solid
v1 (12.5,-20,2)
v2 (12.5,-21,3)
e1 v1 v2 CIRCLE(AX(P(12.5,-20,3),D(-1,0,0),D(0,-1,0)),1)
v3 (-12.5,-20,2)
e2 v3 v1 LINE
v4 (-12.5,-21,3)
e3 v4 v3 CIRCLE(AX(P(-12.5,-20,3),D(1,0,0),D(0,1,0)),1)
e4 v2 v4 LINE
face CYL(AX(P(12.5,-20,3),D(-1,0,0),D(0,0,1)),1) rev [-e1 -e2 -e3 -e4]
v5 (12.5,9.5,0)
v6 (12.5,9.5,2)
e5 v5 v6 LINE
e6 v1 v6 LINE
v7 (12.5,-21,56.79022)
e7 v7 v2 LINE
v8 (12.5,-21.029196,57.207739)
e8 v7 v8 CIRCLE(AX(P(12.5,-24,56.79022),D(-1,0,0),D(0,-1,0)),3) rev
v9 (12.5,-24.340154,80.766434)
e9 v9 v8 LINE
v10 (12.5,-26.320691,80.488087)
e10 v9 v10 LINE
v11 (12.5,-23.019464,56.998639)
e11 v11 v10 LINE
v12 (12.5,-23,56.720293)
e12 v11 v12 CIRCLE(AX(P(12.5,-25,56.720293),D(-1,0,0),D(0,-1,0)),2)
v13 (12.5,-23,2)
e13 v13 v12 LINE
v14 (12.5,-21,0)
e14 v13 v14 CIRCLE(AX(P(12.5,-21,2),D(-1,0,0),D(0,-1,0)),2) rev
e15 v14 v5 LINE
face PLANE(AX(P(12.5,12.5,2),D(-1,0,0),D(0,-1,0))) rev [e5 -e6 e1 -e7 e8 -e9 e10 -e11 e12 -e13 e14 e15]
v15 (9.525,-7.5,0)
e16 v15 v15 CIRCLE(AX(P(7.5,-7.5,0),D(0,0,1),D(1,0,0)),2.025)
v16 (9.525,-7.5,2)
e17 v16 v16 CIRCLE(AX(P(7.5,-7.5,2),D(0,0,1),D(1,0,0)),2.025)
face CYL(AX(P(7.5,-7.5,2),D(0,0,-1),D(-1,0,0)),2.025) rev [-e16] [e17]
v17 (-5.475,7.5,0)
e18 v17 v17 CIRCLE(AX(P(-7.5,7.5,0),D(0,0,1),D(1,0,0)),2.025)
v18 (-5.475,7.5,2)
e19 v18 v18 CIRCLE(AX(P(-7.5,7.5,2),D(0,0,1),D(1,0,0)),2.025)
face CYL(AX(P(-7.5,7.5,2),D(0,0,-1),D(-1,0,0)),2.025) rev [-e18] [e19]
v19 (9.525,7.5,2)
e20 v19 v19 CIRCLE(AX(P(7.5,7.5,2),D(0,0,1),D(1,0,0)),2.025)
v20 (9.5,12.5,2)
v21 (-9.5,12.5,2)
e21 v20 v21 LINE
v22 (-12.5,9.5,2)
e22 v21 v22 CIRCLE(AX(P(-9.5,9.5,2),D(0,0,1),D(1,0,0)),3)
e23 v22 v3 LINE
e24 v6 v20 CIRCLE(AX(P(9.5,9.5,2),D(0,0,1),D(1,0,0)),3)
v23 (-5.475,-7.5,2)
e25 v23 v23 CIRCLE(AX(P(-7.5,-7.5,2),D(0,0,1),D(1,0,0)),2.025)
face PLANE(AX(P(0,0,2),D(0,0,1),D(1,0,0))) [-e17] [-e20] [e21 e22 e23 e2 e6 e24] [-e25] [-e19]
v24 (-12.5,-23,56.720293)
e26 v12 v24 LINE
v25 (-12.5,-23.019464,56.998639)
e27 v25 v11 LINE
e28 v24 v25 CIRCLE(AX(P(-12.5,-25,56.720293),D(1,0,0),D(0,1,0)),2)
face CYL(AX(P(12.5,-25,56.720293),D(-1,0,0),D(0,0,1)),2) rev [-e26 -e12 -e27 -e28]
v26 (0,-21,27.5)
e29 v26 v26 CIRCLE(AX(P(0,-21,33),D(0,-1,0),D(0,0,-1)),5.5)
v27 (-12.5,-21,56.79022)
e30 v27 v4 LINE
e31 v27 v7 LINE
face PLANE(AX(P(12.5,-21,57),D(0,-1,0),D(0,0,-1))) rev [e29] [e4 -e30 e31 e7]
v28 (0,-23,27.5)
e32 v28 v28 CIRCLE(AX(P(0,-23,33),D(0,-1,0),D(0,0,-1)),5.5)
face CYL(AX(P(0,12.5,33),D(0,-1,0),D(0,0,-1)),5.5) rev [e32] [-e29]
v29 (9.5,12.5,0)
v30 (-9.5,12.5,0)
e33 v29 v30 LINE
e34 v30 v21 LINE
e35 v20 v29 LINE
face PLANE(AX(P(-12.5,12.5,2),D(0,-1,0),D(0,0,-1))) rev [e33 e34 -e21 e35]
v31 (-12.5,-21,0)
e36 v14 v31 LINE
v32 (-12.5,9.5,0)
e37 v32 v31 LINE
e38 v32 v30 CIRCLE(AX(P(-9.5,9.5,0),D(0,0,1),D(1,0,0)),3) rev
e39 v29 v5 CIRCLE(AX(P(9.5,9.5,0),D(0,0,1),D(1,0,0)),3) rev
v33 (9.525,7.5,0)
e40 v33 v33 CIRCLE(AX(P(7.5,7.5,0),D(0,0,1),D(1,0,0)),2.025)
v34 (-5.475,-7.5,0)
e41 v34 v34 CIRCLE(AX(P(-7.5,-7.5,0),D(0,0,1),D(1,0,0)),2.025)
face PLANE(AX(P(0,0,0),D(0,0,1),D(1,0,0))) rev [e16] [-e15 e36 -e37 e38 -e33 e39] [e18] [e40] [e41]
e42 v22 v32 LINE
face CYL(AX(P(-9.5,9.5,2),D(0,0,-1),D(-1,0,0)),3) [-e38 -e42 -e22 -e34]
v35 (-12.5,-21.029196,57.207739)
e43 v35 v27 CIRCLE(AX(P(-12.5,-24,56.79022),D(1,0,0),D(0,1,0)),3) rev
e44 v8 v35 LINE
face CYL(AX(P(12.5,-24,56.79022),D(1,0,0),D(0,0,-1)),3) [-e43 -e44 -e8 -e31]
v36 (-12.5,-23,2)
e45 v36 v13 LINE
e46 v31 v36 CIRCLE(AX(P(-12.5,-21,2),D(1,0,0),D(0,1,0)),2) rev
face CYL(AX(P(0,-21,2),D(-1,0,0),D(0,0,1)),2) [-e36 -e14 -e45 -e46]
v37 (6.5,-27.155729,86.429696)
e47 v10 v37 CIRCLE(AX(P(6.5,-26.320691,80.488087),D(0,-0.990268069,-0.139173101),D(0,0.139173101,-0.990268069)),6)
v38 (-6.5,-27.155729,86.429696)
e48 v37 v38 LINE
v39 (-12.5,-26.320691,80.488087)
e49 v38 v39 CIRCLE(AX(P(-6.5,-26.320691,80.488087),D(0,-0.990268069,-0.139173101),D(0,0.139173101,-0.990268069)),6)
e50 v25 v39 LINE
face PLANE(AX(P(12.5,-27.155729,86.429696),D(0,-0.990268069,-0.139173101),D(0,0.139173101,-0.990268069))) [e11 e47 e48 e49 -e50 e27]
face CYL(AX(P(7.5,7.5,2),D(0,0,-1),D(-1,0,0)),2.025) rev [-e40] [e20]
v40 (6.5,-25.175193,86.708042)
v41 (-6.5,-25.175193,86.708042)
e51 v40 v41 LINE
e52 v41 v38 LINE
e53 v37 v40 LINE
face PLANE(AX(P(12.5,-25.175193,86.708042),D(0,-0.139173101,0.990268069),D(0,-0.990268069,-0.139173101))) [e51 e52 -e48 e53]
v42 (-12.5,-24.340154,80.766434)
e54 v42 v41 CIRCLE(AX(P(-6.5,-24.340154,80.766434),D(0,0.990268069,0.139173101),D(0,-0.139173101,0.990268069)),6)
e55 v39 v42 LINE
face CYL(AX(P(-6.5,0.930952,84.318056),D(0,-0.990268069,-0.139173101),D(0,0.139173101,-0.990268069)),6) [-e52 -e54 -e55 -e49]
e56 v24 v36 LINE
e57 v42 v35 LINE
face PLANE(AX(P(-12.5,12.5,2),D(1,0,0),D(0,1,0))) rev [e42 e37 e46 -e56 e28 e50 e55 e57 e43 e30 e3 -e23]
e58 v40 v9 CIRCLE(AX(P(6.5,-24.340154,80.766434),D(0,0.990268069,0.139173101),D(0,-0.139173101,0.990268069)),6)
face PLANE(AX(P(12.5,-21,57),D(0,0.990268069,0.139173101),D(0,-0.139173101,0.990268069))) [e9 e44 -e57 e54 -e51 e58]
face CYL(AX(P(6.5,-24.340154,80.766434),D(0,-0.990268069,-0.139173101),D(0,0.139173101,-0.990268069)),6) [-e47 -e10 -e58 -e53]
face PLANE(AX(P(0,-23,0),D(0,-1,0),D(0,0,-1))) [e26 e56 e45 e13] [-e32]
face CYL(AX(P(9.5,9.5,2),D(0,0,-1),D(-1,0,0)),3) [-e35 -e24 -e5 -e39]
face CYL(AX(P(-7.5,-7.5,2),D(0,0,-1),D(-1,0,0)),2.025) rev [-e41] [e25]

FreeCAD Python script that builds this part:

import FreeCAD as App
import Part
import Sketcher
from FreeCAD import Vector
Q = App.Units.Quantity


def edges_at(feature, points):
    """Names of the edges that pass closest to the given points."""
    edges = feature.Shape.Edges
    near = lambda p: min(range(len(edges)), key=lambda i: edges[i].distToShape(Part.Vertex(*p))[0])
    return sorted({f"Edge{near(p) + 1}" for p in points})


def add_polygon(sketch, points):
    """Adds a closed chain of lines whose ends are joined by coincident constraints."""
    first, n = sketch.GeometryCount, len(points)
    for a, b in zip(points, points[1:] + points[:1]):
        sketch.addGeometry(Part.LineSegment(App.Vector(*a, 0), App.Vector(*b, 0)), False)
    for i in range(n):
        sketch.addConstraint(Sketcher.Constraint("Coincident", first + i, 2, first + (i + 1) % n, 1))

doc = App.newDocument("Part")
body = doc.addObject("PartDesign::Body", "Body")

# Sketch on XY plane
sketch1 = doc.addObject("Sketcher::SketchObject", "Sketch")
body.addObject(sketch1)
sketch1.AttachmentSupport = (doc.XY_Plane, [""])
sketch1.MapMode = "FlatFace"
add_polygon(sketch1, [(-12.5, 12.5), (-12.5, -12.5), (12.5, -12.5), (12.5, 12.5)])  # lines 0-3
sketch1.addGeometry(Part.Circle(Vector(-7.5, -7.5, 0), Vector(0, 0, 1), 2.025), False)  # 4
sketch1.addGeometry(Part.Circle(Vector(7.5, -7.5, 0), Vector(0, 0, 1), 2.025), False)  # 5
sketch1.addGeometry(Part.Circle(Vector(-7.5, 7.5, 0), Vector(0, 0, 1), 2.025), False)  # 6
sketch1.addGeometry(Part.Circle(Vector(7.5, 7.5, 0), Vector(0, 0, 1), 2.025), False)  # 7
sketch1.addConstraint([
    Sketcher.Constraint("Vertical", 0),
    Sketcher.Constraint("Horizontal", 1),
    Sketcher.Constraint("Vertical", 2),
    Sketcher.Constraint("Horizontal", 3),
    Sketcher.Constraint("Equal", 4, 5),
    Sketcher.Constraint("Equal", 5, 6),
    Sketcher.Constraint("Equal", 6, 7),
    Sketcher.Constraint("Symmetric", 5, 3, 6, 3, -1, 1),
    Sketcher.Constraint("Symmetric", 4, 3, 7, 3, -1, 1),
    Sketcher.Constraint("Symmetric", 0, 2, 2, 2, -1, 1),
    Sketcher.Constraint("Symmetric", 4, 3, 5, 3, -2),
    Sketcher.Constraint("Equal", 3, 0),
    Sketcher.Constraint("Diameter", 4, Q("4.05 mm")),
    Sketcher.Constraint("DistanceX", 1, 1, 1, 2, Q("25 mm")),
    Sketcher.Constraint("DistanceX", 4, 3, 5, 3, Q("15 mm")),
    Sketcher.Constraint("DistanceY", 4, 3, 6, 3, Q("15 mm")),
])
pad1 = doc.addObject("PartDesign::Pad", "Pad")
body.addObject(pad1)
pad1.Profile = sketch1
pad1.Length = 2

# Sketch on XZ plane
sketch2 = doc.addObject("Sketcher::SketchObject", "Sketch001")
body.addObject(sketch2)
sketch2.AttachmentSupport = (doc.XZ_Plane, [""])
sketch2.MapMode = "FlatFace"
sketch2.AttachmentOffset = App.Placement(Vector(0, 0, 12.5), App.Rotation())
add_polygon(sketch2, [(-12.5, 2), (-12.5, 0), (12.5, 0), (12.5, 2)])  # lines 0-3
sketch2.addConstraint([
    Sketcher.Constraint("Vertical", 0),
    Sketcher.Constraint("Horizontal", 1),
    Sketcher.Constraint("Vertical", 2),
    Sketcher.Constraint("Horizontal", 3),
    Sketcher.Constraint("Symmetric", 0, 2, 1, 2, -1, 1),
    Sketcher.Constraint("DistanceX", 1, 1, 1, 2, Q("25 mm")),
    Sketcher.Constraint("DistanceY", 0, 2, 0, 1, Q("2 mm")),
])
pad2 = doc.addObject("PartDesign::Pad", "Pad001")
body.addObject(pad2)
pad2.Profile = sketch2
pad2.Length = 10.5

# Sketch on XY plane
sketch3 = doc.addObject("Sketcher::SketchObject", "Sketch002")
body.addObject(sketch3)
sketch3.AttachmentSupport = (doc.XY_Plane, [""])
sketch3.MapMode = "FlatFace"
sketch3.AttachmentOffset = App.Placement(Vector(0, 0, 2), App.Rotation())
add_polygon(sketch3, [(-12.5, -21), (-12.5, -23), (12.5, -23), (12.5, -21)])  # lines 0-3
sketch3.addConstraint([
    Sketcher.Constraint("Vertical", 0),
    Sketcher.Constraint("Horizontal", 1),
    Sketcher.Constraint("Vertical", 2),
    Sketcher.Constraint("Horizontal", 3),
    Sketcher.Constraint("DistanceX", 1, 1, 1, 2, Q("25 mm")),
    Sketcher.Constraint("DistanceY", 0, 2, 0, 1, Q("2 mm")),
    Sketcher.Constraint("DistanceY", 0, 2, -1, 1, Q("23 mm")),
    Sketcher.Constraint("DistanceX", 0, 2, -1, 1, Q("12.5 mm")),
])
pad3 = doc.addObject("PartDesign::Pad", "Pad002")
body.addObject(pad3)
pad3.Profile = sketch3
pad3.Length = 55
doc.recompute()

fillet = doc.addObject("PartDesign::Fillet", "Fillet")
body.addObject(fillet)
fillet.Base = (pad3, edges_at(pad3, [(-12.5, 12.5, 1), (12.5, 12.5, 1)]))
fillet.Radius = 3
doc.recompute()

fillet2 = doc.addObject("PartDesign::Fillet", "Fillet001")
body.addObject(fillet2)
fillet2.Base = (fillet, edges_at(fillet, [(0, -23, 0)]))
fillet2.Radius = 2
doc.recompute()

fillet3 = doc.addObject("PartDesign::Fillet", "Fillet002")
body.addObject(fillet3)
fillet3.Base = (fillet2, edges_at(fillet2, [(0, -21, 2)]))
fillet3.Radius = 1

# Sketch on YZ plane
sketch4 = doc.addObject("Sketcher::SketchObject", "Sketch003")
body.addObject(sketch4)
sketch4.AttachmentSupport = (doc.YZ_Plane, [""])
sketch4.MapMode = "FlatFace"
sketch4.AttachmentOffset = App.Placement(Vector(0, 0, -12.5), App.Rotation())
add_polygon(sketch4, [(-25.175193, 86.708042), (-21, 57), (-22.980536, 56.721654), (-23.019655, 57), (-27.155729, 86.429696)])  # lines 0-4
sketch4.addConstraint([
    Sketcher.Constraint("Perpendicular", 0, 1),
    Sketcher.Constraint("Perpendicular", 1, 2),
    Sketcher.Constraint("Parallel", 2, 3),
    Sketcher.Constraint("Perpendicular", 3, 4),
    Sketcher.Constraint("Horizontal", 0, 2, 2, 2),
    Sketcher.Constraint("Angle", 0, Q("-82 deg")),
    Sketcher.Constraint("Distance", 0, Q("30 mm")),
    Sketcher.Constraint("Distance", 1, Q("2 mm")),
    Sketcher.Constraint("DistanceX", 0, 2, -1, 1, Q("21 mm")),
    Sketcher.Constraint("DistanceY", -1, 1, 0, 2, Q("57 mm")),
])
pad4 = doc.addObject("PartDesign::Pad", "Pad003")
body.addObject(pad4)
pad4.Profile = sketch4
pad4.Length = 25
doc.recompute()

fillet4 = doc.addObject("PartDesign::Fillet", "Fillet003")
body.addObject(fillet4)
fillet4.Base = (pad4, edges_at(pad4, [(0, -21, 57)]))
fillet4.Radius = 3
doc.recompute()

fillet5 = doc.addObject("PartDesign::Fillet", "Fillet004")
body.addObject(fillet5)
fillet5.Base = (fillet4, edges_at(fillet4, [(0, -23, 56.86)]))
fillet5.Radius = 2

# Sketch on XZ plane
sketch5 = doc.addObject("Sketcher::SketchObject", "Sketch004")
body.addObject(sketch5)
sketch5.AttachmentSupport = (doc.XZ_Plane, [""])
sketch5.MapMode = "FlatFace"
sketch5.AttachmentOffset = App.Placement(Vector(0, 0, 23), App.Rotation())
sketch5.addGeometry(Part.Circle(Vector(0, 33, 0), Vector(0, 0, 1), 5.5), False)
sketch5.addConstraint([
    Sketcher.Constraint("PointOnObject", 0, 3, -2),
    Sketcher.Constraint("Diameter", 0, Q("11 mm")),
    Sketcher.Constraint("DistanceY", -1, 1, 0, 3, Q("33 mm")),
])
pocket1 = doc.addObject("PartDesign::Pocket", "Pocket")
body.addObject(pocket1)
pocket1.Profile = sketch5
pocket1.Type = "ThroughAll"
doc.recompute()

fillet6 = doc.addObject("PartDesign::Fillet", "Fillet005")
body.addObject(fillet6)
fillet6.Base = (pocket1, edges_at(pocket1, [(12.5, -26.165, 86.569), (-12.5, -26.165, 86.569)]))
fillet6.Radius = 6

doc.recompute()
